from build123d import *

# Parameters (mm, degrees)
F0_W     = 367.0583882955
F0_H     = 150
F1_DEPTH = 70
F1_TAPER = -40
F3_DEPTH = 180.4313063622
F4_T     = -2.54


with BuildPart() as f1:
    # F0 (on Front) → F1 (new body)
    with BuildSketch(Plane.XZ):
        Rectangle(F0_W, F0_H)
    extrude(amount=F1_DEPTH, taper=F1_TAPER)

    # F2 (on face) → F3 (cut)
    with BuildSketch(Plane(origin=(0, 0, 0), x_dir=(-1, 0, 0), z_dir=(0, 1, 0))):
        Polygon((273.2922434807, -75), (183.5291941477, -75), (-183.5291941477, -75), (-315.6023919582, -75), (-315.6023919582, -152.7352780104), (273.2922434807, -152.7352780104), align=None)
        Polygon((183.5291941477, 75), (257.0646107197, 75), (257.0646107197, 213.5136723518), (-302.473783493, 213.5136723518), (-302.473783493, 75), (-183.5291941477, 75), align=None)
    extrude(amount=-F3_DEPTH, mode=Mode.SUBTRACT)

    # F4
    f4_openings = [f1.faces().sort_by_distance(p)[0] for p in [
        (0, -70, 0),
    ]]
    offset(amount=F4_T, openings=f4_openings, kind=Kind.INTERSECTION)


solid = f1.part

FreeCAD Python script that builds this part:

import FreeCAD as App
import Part
import Sketcher
Q = App.Units.Quantity


def faces_at(feature, points):
    """Names of the faces that lie closest to the given points."""
    faces = feature.Shape.Faces
    near = lambda p: min(range(len(faces)), key=lambda i: faces[i].distToShape(Part.Vertex(*p))[0])
    return sorted({f"Face{near(p) + 1}" for p in points})


def add_polygon(sketch, points):
    """Adds a closed chain of lines whose ends are joined by coincident constraints."""
    first, n = sketch.GeometryCount, len(points)
    for a, b in zip(points, points[1:] + points[:1]):
        sketch.addGeometry(Part.LineSegment(App.Vector(*a, 0), App.Vector(*b, 0)), False)
    for i in range(n):
        sketch.addConstraint(Sketcher.Constraint("Coincident", first + i, 2, first + (i + 1) % n, 1))

doc = App.newDocument("Part")
body = doc.addObject("PartDesign::Body", "Body")

sketch1 = body.newObject("Sketcher::SketchObject", "Sketch")
sketch1.AttachmentSupport = (doc.getObject("XZ_Plane"), [""])
sketch1.MapMode = "FlatFace"
add_polygon(sketch1, [(-184, 75), (-184, -75), (184, -75), (184, 75)])
sketch1.addConstraint([
    Sketcher.Constraint("Vertical", 0),
    Sketcher.Constraint("Horizontal", 1),
    Sketcher.Constraint("Vertical", 2),
    Sketcher.Constraint("Horizontal", 3),
    Sketcher.Constraint("Symmetric", 0, 2, 2, 2, -1, 1),
    Sketcher.Constraint("DistanceY", 0, 2, 0, 1, Q("150 mm")),
    Sketcher.Constraint("DistanceX", 1, 1, 1, 2, Q("367.058388 mm")),
])
pad1 = body.newObject("PartDesign::Pad", "Pad")
pad1.Profile = sketch1
pad1.Length = 70
pad1.TaperAngle = 40

sketch2 = body.newObject("Sketcher::SketchObject", "Sketch001")
sketch2.AttachmentSupport = (doc.getObject("XZ_Plane"), [""])
sketch2.MapMode = "FlatFace"
add_polygon(sketch2, [(-273, -75), (316, -75), (316, -153), (-273, -153)])
add_polygon(sketch2, [(-257, 75), (-257, 214), (302, 214), (302, 75)])
sketch2.addConstraint([
    Sketcher.Constraint("Horizontal", 0),
    Sketcher.Constraint("Vertical", 1),
    Sketcher.Constraint("Horizontal", 2),
    Sketcher.Constraint("Vertical", 3),
    Sketcher.Constraint("Vertical", 4),
    Sketcher.Constraint("Horizontal", 5),
    Sketcher.Constraint("Vertical", 6),
    Sketcher.Constraint("Horizontal", 7),
    Sketcher.Constraint("DistanceY", 0, 2, -1, 1, Q("75 mm")),
    Sketcher.Constraint("DistanceY", -1, 1, 6, 2, Q("75 mm")),
    Sketcher.Constraint("DistanceY", 1, 2, 1, 1, Q("77.735278 mm")),
    Sketcher.Constraint("DistanceX", 0, 1, 0, 2, Q("588.894635 mm")),
    Sketcher.Constraint("DistanceX", 5, 1, 5, 2, Q("559.538394 mm")),
    Sketcher.Constraint("DistanceY", 4, 1, 4, 2, Q("138.513672 mm")),
    Sketcher.Constraint("DistanceX", -1, 1, 0, 2, Q("315.602392 mm")),
    Sketcher.Constraint("DistanceX", 4, 2, -1, 1, Q("257.064611 mm")),
])
pocket1 = body.newObject("PartDesign::Pocket", "Pocket")
pocket1.Profile = sketch2
pocket1.Length = 180.431306
pocket1.Reversed = True
doc.recompute()

thickness = body.newObject("PartDesign::Thickness", "Thickness")
thickness.Base = (pocket1, faces_at(pocket1, [(0, -70, 0)]))
thickness.Value = 2.54
thickness.Reversed = True
thickness.Join = "Intersection"

doc.recompute()
